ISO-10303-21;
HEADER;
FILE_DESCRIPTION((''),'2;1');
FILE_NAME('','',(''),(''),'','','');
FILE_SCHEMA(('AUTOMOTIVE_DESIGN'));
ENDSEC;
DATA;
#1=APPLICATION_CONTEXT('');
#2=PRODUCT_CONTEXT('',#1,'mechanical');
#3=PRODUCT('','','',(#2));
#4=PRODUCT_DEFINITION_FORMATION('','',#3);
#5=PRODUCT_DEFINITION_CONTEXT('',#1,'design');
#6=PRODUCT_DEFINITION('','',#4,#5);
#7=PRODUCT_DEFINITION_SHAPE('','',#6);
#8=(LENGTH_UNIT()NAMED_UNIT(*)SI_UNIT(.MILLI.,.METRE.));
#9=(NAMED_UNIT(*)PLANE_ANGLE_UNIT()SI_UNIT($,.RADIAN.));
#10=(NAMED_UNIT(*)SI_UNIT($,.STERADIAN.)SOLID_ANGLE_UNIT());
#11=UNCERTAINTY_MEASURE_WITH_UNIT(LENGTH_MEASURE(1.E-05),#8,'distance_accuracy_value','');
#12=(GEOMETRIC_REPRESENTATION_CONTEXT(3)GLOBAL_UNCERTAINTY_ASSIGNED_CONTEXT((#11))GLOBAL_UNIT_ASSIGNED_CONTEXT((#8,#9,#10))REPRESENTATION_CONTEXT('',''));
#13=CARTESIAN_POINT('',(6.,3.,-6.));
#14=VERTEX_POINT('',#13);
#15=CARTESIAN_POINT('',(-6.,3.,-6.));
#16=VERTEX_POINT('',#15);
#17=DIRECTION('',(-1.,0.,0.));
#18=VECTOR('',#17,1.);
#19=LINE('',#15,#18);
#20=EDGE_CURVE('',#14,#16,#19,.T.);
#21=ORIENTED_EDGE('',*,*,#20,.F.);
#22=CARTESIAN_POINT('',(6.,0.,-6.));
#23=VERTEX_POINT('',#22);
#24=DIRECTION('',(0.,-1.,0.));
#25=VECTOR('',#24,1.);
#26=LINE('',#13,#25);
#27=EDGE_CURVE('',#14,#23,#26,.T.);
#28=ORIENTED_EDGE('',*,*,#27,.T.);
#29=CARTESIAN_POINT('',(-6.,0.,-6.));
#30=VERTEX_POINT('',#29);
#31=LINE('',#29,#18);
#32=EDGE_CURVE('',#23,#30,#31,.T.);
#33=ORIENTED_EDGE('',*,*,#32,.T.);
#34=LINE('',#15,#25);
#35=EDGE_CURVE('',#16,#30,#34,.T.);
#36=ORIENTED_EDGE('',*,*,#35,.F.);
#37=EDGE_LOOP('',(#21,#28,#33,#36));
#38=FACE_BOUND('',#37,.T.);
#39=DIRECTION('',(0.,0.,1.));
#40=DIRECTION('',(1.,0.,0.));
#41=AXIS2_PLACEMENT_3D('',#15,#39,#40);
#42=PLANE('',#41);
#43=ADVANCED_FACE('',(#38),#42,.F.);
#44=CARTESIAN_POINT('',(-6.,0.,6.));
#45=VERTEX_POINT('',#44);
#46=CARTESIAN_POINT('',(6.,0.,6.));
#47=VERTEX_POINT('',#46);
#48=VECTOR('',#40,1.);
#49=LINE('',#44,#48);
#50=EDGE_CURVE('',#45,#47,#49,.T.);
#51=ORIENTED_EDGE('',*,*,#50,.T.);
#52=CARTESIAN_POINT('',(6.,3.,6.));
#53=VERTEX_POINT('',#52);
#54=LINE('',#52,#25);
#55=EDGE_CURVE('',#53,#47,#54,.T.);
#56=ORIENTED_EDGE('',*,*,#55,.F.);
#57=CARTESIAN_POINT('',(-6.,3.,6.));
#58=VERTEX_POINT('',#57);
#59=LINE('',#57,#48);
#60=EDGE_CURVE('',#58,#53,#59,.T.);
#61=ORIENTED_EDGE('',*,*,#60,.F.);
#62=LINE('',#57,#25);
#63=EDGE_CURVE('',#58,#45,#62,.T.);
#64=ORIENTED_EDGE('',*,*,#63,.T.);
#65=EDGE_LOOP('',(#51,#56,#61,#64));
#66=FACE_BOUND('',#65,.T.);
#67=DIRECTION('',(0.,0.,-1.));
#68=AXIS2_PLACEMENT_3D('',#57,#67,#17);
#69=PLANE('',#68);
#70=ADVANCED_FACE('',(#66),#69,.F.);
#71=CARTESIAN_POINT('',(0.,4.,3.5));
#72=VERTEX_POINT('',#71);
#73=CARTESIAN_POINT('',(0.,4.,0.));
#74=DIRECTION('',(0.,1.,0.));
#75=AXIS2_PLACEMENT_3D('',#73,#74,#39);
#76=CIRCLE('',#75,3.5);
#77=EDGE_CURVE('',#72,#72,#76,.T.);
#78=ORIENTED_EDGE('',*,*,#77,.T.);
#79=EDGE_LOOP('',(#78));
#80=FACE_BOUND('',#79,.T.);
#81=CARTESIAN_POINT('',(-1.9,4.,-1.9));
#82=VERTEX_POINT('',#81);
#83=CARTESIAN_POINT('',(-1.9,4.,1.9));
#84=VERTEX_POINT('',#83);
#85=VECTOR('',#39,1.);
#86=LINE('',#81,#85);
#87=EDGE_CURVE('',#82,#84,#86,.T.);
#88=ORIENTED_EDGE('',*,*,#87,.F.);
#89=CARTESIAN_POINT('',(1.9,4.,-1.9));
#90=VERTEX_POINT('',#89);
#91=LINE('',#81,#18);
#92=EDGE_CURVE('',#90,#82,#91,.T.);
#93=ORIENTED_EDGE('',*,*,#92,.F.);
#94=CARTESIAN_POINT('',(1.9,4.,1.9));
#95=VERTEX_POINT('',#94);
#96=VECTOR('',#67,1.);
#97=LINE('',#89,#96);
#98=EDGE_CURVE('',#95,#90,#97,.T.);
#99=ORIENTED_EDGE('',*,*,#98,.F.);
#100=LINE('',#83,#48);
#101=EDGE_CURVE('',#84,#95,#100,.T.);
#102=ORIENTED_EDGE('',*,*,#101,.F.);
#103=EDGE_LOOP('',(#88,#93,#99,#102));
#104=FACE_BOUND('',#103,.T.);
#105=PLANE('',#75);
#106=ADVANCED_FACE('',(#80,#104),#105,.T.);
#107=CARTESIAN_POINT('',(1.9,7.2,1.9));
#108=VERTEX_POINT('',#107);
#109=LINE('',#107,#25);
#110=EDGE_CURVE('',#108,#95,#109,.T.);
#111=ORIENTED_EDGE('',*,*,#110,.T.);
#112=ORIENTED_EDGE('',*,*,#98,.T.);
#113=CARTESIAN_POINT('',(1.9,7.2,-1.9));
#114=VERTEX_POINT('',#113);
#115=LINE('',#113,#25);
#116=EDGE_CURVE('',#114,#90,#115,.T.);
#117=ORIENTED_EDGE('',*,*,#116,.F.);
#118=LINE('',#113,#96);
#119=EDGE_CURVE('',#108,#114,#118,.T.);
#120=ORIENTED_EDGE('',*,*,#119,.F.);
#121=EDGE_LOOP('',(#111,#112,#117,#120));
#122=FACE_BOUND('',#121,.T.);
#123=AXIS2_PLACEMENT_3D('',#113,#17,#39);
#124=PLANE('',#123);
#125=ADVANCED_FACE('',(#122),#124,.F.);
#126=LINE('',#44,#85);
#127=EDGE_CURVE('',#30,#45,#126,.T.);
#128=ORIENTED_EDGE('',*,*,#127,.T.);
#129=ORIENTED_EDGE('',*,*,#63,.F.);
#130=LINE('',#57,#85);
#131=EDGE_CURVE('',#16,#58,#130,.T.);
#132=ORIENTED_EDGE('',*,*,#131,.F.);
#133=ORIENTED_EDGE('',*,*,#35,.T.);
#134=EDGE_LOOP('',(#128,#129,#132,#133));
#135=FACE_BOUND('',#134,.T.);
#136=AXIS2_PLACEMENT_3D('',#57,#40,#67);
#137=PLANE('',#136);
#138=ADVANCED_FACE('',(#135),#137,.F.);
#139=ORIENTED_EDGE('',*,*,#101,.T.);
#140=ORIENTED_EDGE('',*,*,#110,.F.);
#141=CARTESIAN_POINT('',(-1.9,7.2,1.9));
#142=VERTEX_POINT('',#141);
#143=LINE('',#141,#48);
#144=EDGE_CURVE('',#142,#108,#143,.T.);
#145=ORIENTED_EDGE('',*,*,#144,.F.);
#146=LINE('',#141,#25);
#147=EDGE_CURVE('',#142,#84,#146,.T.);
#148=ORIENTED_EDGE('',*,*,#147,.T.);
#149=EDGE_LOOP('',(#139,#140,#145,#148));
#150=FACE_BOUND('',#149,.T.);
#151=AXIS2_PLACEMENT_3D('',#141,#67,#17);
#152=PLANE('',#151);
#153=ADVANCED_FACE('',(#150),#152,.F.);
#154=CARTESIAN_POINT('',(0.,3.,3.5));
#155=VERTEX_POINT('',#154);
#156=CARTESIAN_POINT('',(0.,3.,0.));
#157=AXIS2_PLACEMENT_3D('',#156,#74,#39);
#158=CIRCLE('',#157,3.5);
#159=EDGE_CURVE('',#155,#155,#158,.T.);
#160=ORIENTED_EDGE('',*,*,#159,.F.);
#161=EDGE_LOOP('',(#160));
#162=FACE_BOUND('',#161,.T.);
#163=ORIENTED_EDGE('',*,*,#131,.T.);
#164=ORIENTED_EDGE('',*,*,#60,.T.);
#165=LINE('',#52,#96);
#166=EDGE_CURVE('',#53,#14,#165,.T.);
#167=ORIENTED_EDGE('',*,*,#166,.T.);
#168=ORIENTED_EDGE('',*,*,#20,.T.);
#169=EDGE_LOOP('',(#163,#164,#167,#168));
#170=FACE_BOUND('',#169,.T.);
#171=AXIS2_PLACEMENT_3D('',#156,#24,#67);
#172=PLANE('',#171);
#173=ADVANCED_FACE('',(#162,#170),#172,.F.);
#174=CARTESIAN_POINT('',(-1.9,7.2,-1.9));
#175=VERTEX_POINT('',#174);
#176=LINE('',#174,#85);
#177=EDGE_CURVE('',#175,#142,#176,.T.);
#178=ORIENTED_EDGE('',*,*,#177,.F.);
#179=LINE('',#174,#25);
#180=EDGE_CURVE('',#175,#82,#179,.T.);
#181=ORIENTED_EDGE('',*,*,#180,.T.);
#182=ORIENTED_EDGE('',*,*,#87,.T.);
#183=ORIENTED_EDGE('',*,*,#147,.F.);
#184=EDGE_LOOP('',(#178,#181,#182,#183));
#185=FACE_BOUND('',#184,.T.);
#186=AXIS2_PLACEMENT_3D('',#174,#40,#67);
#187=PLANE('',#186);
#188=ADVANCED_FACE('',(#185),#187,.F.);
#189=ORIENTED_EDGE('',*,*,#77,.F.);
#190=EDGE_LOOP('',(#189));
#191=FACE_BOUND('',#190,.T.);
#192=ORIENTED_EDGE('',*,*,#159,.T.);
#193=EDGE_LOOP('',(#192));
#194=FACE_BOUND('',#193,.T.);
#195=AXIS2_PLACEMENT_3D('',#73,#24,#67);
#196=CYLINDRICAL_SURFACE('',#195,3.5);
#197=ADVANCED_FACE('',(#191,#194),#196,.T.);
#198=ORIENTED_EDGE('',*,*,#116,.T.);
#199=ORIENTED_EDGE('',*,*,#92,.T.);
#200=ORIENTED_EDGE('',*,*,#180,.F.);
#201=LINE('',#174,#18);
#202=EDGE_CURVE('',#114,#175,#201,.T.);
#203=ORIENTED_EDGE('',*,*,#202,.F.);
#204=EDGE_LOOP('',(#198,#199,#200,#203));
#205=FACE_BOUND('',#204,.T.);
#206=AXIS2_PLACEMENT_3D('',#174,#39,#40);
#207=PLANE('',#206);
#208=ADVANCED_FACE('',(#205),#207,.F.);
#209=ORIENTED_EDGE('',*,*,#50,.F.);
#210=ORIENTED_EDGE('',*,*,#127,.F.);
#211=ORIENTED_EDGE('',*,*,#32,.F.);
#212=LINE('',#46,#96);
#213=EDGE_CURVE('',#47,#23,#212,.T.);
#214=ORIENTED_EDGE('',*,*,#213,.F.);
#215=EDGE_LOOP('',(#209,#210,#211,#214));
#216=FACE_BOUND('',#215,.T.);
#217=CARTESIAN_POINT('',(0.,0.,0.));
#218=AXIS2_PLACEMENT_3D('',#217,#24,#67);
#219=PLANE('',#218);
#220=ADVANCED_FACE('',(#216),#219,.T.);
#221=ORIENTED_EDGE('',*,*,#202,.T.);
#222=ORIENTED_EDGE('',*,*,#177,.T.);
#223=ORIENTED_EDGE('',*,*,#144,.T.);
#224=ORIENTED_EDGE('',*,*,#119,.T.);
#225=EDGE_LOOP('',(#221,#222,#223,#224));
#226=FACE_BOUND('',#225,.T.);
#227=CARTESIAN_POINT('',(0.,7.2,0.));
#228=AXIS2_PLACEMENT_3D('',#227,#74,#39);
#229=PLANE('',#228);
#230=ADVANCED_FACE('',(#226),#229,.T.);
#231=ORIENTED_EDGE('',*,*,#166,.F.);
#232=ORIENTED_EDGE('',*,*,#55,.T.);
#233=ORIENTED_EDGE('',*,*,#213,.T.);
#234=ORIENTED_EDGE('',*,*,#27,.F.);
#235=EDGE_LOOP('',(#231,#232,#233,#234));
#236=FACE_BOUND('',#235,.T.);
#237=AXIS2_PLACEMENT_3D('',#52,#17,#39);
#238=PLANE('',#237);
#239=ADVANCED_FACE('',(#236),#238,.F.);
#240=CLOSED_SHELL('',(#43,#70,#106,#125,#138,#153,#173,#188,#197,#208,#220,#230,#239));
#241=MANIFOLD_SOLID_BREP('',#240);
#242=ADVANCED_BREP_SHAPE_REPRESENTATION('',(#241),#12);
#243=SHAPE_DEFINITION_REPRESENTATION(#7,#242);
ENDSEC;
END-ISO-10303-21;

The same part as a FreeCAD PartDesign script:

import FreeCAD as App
import Part
import Sketcher
Q = App.Units.Quantity

doc = App.newDocument("Part")
body = doc.addObject("PartDesign::Body", "Body")

sketch1 = doc.addObject("Sketcher::SketchObject", "Sketch")
body.addObject(sketch1)
sketch1.AttachmentSupport = (doc.XZ_Plane, [""])
sketch1.MapMode = "FlatFace"
sketch1.addGeometry([
    Part.LineSegment(App.Vector(-6, -6, 0), App.Vector(-6, 6, 0)),
    Part.LineSegment(App.Vector(-6, 6, 0), App.Vector(6, 6, 0)),
    Part.LineSegment(App.Vector(6, 6, 0), App.Vector(6, -6, 0)),
    Part.LineSegment(App.Vector(6, -6, 0), App.Vector(-6, -6, 0)),
], False)
sketch1.addConstraint([
    Sketcher.Constraint("Coincident", 0, 2, 1, 1),
    Sketcher.Constraint("Coincident", 1, 2, 2, 1),
    Sketcher.Constraint("Coincident", 2, 2, 3, 1),
    Sketcher.Constraint("Coincident", 3, 2, 0, 1),
    Sketcher.Constraint("Vertical", 0),
    Sketcher.Constraint("Horizontal", 1),
    Sketcher.Constraint("Vertical", 2),
    Sketcher.Constraint("Horizontal", 3),
    Sketcher.Constraint("Symmetric", 0, 2, 2, 2, -1, 1),
    Sketcher.Constraint("Equal", 3, 0),
    Sketcher.Constraint("DistanceX", 1, 1, 1, 2, Q("12 mm")),
])
pad1 = doc.addObject("PartDesign::Pad", "Pad")
body.addObject(pad1)
pad1.Profile = sketch1
pad1.Length = 3
pad1.Reversed = True

sketch2 = doc.addObject("Sketcher::SketchObject", "Sketch001")
body.addObject(sketch2)
sketch2.AttachmentSupport = (doc.XZ_Plane, [""])
sketch2.MapMode = "FlatFace"
sketch2.AttachmentOffset = App.Placement(App.Vector(0, 0, -3), App.Rotation())
sketch2.addGeometry(Part.Circle(App.Vector(0, 0, 0), App.Vector(0, 0, 1), 3.5), False)
sketch2.addConstraint([
    Sketcher.Constraint("Coincident", 0, 3, -1, 1),
    Sketcher.Constraint("Diameter", 0, Q("7 mm")),
])
pad2 = doc.addObject("PartDesign::Pad", "Pad001")
body.addObject(pad2)
pad2.Profile = sketch2
pad2.Length = 1
pad2.Reversed = True

sketch3 = doc.addObject("Sketcher::SketchObject", "Sketch002")
body.addObject(sketch3)
sketch3.AttachmentSupport = (doc.XZ_Plane, [""])
sketch3.MapMode = "FlatFace"
sketch3.AttachmentOffset = App.Placement(App.Vector(0, 0, -4), App.Rotation())
sketch3.addGeometry([
    Part.LineSegment(App.Vector(-1.9, -1.9, 0), App.Vector(-1.9, 1.9, 0)),
    Part.LineSegment(App.Vector(-1.9, 1.9, 0), App.Vector(1.9, 1.9, 0)),
    Part.LineSegment(App.Vector(1.9, 1.9, 0), App.Vector(1.9, -1.9, 0)),
    Part.LineSegment(App.Vector(1.9, -1.9, 0), App.Vector(-1.9, -1.9, 0)),
], False)
sketch3.addConstraint([
    Sketcher.Constraint("Coincident", 0, 2, 1, 1),
    Sketcher.Constraint("Coincident", 1, 2, 2, 1),
    Sketcher.Constraint("Coincident", 2, 2, 3, 1),
    Sketcher.Constraint("Coincident", 3, 2, 0, 1),
    Sketcher.Constraint("Vertical", 0),
    Sketcher.Constraint("Horizontal", 1),
    Sketcher.Constraint("Vertical", 2),
    Sketcher.Constraint("Horizontal", 3),
    Sketcher.Constraint("Symmetric", 0, 2, 2, 2, -1, 1),
    Sketcher.Constraint("Equal", 3, 0),
    Sketcher.Constraint("DistanceX", 1, 1, 1, 2, Q("3.8 mm")),
])
pad3 = doc.addObject("PartDesign::Pad", "Pad002")
body.addObject(pad3)
pad3.Profile = sketch3
pad3.Length = 3.2
pad3.Reversed = True

doc.recompute()
